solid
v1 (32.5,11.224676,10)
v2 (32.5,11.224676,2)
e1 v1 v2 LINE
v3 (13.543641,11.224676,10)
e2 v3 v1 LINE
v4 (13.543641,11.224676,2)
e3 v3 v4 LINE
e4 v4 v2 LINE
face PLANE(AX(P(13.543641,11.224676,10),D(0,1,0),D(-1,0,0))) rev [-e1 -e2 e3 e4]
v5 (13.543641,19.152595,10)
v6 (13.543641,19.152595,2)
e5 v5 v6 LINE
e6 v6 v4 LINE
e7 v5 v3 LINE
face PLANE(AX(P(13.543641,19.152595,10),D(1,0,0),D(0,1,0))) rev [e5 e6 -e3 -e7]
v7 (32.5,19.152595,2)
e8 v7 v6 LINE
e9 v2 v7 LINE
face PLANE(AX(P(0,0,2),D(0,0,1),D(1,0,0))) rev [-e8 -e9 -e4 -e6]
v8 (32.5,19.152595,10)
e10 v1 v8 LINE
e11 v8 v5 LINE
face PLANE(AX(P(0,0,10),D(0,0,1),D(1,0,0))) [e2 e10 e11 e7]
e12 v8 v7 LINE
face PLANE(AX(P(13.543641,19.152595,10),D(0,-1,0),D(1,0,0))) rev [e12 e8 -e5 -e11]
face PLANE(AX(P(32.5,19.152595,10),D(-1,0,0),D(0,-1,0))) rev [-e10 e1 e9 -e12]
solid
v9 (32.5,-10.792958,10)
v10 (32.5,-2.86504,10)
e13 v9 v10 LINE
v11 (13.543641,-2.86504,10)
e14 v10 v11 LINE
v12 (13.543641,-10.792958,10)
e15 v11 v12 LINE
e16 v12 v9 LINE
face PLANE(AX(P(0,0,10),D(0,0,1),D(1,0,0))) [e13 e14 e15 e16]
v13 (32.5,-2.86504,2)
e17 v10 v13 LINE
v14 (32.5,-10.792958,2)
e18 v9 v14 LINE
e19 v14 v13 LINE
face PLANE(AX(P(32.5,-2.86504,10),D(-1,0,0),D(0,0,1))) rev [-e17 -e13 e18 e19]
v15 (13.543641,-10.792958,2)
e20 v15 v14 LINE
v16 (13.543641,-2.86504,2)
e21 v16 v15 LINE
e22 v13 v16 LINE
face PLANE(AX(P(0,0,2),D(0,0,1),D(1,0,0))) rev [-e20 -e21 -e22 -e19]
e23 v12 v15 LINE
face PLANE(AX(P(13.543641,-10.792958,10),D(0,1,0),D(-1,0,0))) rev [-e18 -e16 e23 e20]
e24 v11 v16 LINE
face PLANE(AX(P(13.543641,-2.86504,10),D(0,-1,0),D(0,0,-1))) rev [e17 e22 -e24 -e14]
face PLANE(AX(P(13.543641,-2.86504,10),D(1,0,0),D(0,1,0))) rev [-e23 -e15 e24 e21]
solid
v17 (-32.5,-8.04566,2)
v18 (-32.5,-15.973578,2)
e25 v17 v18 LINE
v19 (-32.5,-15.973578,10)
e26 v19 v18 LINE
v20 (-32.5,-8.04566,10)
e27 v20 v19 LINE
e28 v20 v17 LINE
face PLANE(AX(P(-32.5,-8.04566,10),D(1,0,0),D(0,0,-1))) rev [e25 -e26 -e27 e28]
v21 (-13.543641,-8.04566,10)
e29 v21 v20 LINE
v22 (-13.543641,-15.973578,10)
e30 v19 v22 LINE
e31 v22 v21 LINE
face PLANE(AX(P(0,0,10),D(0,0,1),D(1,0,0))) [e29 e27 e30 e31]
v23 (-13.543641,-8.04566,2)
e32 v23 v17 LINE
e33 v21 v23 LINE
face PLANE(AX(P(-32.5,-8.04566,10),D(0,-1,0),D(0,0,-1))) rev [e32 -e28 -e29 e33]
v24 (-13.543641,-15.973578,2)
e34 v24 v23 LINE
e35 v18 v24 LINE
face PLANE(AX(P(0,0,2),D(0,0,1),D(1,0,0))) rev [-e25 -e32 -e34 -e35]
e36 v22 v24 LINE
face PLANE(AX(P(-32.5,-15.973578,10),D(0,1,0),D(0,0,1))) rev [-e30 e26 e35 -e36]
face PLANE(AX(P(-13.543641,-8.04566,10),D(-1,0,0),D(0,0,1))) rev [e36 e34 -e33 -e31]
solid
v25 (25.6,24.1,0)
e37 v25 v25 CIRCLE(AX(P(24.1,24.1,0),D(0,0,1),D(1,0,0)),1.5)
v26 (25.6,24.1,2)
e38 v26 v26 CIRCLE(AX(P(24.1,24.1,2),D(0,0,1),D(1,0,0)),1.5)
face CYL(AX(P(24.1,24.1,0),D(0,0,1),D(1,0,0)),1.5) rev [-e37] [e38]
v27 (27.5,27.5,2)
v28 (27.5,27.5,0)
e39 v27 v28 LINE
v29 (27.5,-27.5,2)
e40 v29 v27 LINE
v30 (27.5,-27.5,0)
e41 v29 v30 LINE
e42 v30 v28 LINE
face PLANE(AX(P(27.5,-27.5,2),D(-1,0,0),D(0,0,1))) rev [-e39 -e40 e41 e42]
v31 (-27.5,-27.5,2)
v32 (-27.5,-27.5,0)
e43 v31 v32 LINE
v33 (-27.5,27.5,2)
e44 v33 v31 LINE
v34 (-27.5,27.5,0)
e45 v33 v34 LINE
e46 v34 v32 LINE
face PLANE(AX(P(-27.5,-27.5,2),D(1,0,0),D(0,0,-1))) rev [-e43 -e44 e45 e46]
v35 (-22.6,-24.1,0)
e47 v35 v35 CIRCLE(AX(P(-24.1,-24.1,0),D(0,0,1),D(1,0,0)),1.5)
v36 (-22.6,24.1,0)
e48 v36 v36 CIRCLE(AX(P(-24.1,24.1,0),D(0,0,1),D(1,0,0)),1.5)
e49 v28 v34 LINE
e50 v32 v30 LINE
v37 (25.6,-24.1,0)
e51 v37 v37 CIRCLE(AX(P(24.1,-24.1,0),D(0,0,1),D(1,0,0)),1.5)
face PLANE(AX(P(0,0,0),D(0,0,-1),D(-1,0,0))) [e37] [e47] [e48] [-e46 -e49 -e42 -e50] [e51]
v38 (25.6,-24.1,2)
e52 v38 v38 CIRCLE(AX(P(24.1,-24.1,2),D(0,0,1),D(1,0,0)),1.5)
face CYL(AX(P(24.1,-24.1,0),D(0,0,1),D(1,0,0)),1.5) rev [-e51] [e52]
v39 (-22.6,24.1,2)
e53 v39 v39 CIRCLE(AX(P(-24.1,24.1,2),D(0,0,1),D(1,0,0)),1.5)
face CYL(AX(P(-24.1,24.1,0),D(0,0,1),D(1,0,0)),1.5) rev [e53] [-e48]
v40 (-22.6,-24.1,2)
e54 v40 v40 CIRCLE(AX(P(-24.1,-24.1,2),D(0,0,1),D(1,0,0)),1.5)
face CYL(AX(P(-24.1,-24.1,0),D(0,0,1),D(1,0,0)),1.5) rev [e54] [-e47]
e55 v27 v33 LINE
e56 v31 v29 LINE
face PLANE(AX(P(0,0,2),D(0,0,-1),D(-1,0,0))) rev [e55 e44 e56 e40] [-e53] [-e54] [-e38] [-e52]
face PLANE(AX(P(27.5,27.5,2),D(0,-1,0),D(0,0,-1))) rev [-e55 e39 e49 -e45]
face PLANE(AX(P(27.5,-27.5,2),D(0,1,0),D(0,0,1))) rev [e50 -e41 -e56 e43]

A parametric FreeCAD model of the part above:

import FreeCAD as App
import Part
import Sketcher

V = App.Vector


def add_polygon(sketch, points):
    """Adds a closed chain of lines whose ends are joined by coincident constraints."""
    first, n = sketch.GeometryCount, len(points)
    for a, b in zip(points, points[1:] + points[:1]):
        sketch.addGeometry(Part.LineSegment(App.Vector(*a, 0), App.Vector(*b, 0)), False)
    for i in range(n):
        sketch.addConstraint(Sketcher.Constraint("Coincident", first + i, 2, first + (i + 1) % n, 1))

doc = App.newDocument("Part")
params = doc.addObject("Spreadsheet::Sheet", "Params")
for row, (alias, value) in enumerate([
    ("sketch1_width", "55 mm"),
    ("pad1_length", "2 mm"),
    ("sketch2_diameter", "3 mm"),
    ("pocket1_length", "2 mm"),
    ("pad2_length", "8 mm"),
    ("pad3_length", "8 mm"),
    ("pad4_length", "8 mm"),
], start=1):
    params.set(f"A{row}", alias)
    params.set(f"B{row}", "=" + value)
    params.setAlias(f"B{row}", alias)

body = doc.addObject("PartDesign::Body", "Body")

# Sketch on XY plane
sketch1 = body.newObject("Sketcher::SketchObject", "Sketch")
sketch1.AttachmentSupport = (doc.getObject("XY_Plane"), [""])
sketch1.MapMode = "FlatFace"
add_polygon(sketch1, [(-28, -28), (28, -28), (28, 28), (-28, 28)])  # lines 0-3
sketch1.addConstraint(Sketcher.Constraint("Horizontal", 0))
sketch1.addConstraint(Sketcher.Constraint("Vertical", 1))
sketch1.addConstraint(Sketcher.Constraint("Horizontal", 2))
sketch1.addConstraint(Sketcher.Constraint("Vertical", 3))
sketch1.addConstraint(Sketcher.Constraint("Symmetric", 0, 2, 2, 2, -1, 1))
sketch1.addConstraint(Sketcher.Constraint("Equal", 2, 1))
sketch1.addConstraint(Sketcher.Constraint("DistanceX", 0, 1, 0, 2, 55.0))
sketch1.setExpression("Constraints[10]", "Params.sketch1_width")
pad1 = body.newObject("PartDesign::Pad", "Pad")
pad1.Profile = sketch1
pad1.setExpression("Length", "Params.pad1_length")

# Sketch on XY plane
sketch2 = body.newObject("Sketcher::SketchObject", "Sketch001")
sketch2.AttachmentSupport = (doc.getObject("XY_Plane"), [""])
sketch2.MapMode = "FlatFace"
sketch2.AttachmentOffset = App.Placement(V(0, 0, 2), App.Rotation())
sketch2.addGeometry(Part.Circle(V(24.1, 24.1, 0), V(0, 0, 1), 1.5), False)
sketch2.addGeometry(Part.Circle(V(24.1, -24.1, 0), V(0, 0, 1), 1.5), False)
sketch2.addGeometry(Part.Circle(V(-24.1, -24.1, 0), V(0, 0, 1), 1.5), False)
sketch2.addGeometry(Part.Circle(V(-24.1, 24.1, 0), V(0, 0, 1), 1.5), False)
sketch2.addConstraint(Sketcher.Constraint("Equal", 0, 1))
sketch2.addConstraint(Sketcher.Constraint("Equal", 1, 2))
sketch2.addConstraint(Sketcher.Constraint("Equal", 2, 3))
sketch2.addConstraint(Sketcher.Constraint("Symmetric", 0, 3, 2, 3, -1, 1))
sketch2.addConstraint(Sketcher.Constraint("Symmetric", 1, 3, 3, 3, -1, 1))
sketch2.addConstraint(Sketcher.Constraint("Symmetric", 1, 3, 2, 3, -2))
sketch2.addConstraint(Sketcher.Constraint("Diameter", 0, 3.0))
sketch2.addConstraint(Sketcher.Constraint("DistanceX", -1, 1, 0, 3, 24.1))
sketch2.addConstraint(Sketcher.Constraint("DistanceY", -1, 1, 0, 3, 24.1))
sketch2.setExpression("Constraints[6]", "Params.sketch2_diameter")
pocket1 = body.newObject("PartDesign::Pocket", "Pocket")
pocket1.Profile = sketch2
pocket1.setExpression("Length", "Params.pocket1_length")
body2 = doc.addObject("PartDesign::Body", "Body001")

# Sketch on XY plane
sketch3 = body2.newObject("Sketcher::SketchObject", "Sketch002")
sketch3.AttachmentSupport = (doc.getObject("XY_Plane001"), [""])
sketch3.MapMode = "FlatFace"
sketch3.AttachmentOffset = App.Placement(V(0, 0, 2), App.Rotation())
add_polygon(sketch3, [(-32, -8), (-32, -16), (-14, -16), (-14, -8)])  # lines 0-3
sketch3.addConstraint(Sketcher.Constraint("Vertical", 0))
sketch3.addConstraint(Sketcher.Constraint("Horizontal", 1))
sketch3.addConstraint(Sketcher.Constraint("Vertical", 2))
sketch3.addConstraint(Sketcher.Constraint("Horizontal", 3))
sketch3.addConstraint(Sketcher.Constraint("DistanceX", 0, 2, -1, 1, 32.5))
sketch3.addConstraint(Sketcher.Constraint("DistanceX", 1, 1, 1, 2, 18.956359))
sketch3.addConstraint(Sketcher.Constraint("DistanceY", 0, 2, 0, 1, 7.927918))
sketch3.addConstraint(Sketcher.Constraint("DistanceY", 0, 2, -1, 1, 15.973578))
pad2 = body2.newObject("PartDesign::Pad", "Pad001")
pad2.Profile = sketch3
pad2.setExpression("Length", "Params.pad2_length")
body3 = doc.addObject("PartDesign::Body", "Body002")

# Sketch on XY plane
sketch4 = body3.newObject("Sketcher::SketchObject", "Sketch003")
sketch4.AttachmentSupport = (doc.getObject("XY_Plane002"), [""])
sketch4.MapMode = "FlatFace"
sketch4.AttachmentOffset = App.Placement(V(0, 0, 2), App.Rotation())
add_polygon(sketch4, [(14, 19), (14, 11), (32, 11), (32, 19)])  # lines 0-3
sketch4.addConstraint(Sketcher.Constraint("Vertical", 0))
sketch4.addConstraint(Sketcher.Constraint("Horizontal", 1))
sketch4.addConstraint(Sketcher.Constraint("Vertical", 2))
sketch4.addConstraint(Sketcher.Constraint("Horizontal", 3))
sketch4.addConstraint(Sketcher.Constraint("DistanceX", -1, 1, 1, 2, 32.5))
sketch4.addConstraint(Sketcher.Constraint("DistanceX", 1, 1, 1, 2, 18.956359))
sketch4.addConstraint(Sketcher.Constraint("DistanceY", 0, 2, 0, 1, 7.927918))
sketch4.addConstraint(Sketcher.Constraint("DistanceY", -1, 1, 0, 2, 11.224676))
pad3 = body3.newObject("PartDesign::Pad", "Pad002")
pad3.Profile = sketch4
pad3.setExpression("Length", "Params.pad3_length")
body4 = doc.addObject("PartDesign::Body", "Body003")

# Sketch on XY plane
sketch5 = body4.newObject("Sketcher::SketchObject", "Sketch004")
sketch5.AttachmentSupport = (doc.getObject("XY_Plane003"), [""])
sketch5.MapMode = "FlatFace"
sketch5.AttachmentOffset = App.Placement(V(0, 0, 2), App.Rotation())
add_polygon(sketch5, [(14, -3), (14, -11), (32, -11), (32, -3)])  # lines 0-3
sketch5.addConstraint(Sketcher.Constraint("Vertical", 0))
sketch5.addConstraint(Sketcher.Constraint("Horizontal", 1))
sketch5.addConstraint(Sketcher.Constraint("Vertical", 2))
sketch5.addConstraint(Sketcher.Constraint("Horizontal", 3))
sketch5.addConstraint(Sketcher.Constraint("DistanceX", -1, 1, 1, 2, 32.5))
sketch5.addConstraint(Sketcher.Constraint("DistanceX", 1, 1, 1, 2, 18.956359))
sketch5.addConstraint(Sketcher.Constraint("DistanceY", 0, 2, 0, 1, 7.927918))
sketch5.addConstraint(Sketcher.Constraint("DistanceY", 0, 2, -1, 1, 10.792958))
pad4 = body4.newObject("PartDesign::Pad", "Pad003")
pad4.Profile = sketch5
pad4.setExpression("Length", "Params.pad4_length")

doc.recompute()
